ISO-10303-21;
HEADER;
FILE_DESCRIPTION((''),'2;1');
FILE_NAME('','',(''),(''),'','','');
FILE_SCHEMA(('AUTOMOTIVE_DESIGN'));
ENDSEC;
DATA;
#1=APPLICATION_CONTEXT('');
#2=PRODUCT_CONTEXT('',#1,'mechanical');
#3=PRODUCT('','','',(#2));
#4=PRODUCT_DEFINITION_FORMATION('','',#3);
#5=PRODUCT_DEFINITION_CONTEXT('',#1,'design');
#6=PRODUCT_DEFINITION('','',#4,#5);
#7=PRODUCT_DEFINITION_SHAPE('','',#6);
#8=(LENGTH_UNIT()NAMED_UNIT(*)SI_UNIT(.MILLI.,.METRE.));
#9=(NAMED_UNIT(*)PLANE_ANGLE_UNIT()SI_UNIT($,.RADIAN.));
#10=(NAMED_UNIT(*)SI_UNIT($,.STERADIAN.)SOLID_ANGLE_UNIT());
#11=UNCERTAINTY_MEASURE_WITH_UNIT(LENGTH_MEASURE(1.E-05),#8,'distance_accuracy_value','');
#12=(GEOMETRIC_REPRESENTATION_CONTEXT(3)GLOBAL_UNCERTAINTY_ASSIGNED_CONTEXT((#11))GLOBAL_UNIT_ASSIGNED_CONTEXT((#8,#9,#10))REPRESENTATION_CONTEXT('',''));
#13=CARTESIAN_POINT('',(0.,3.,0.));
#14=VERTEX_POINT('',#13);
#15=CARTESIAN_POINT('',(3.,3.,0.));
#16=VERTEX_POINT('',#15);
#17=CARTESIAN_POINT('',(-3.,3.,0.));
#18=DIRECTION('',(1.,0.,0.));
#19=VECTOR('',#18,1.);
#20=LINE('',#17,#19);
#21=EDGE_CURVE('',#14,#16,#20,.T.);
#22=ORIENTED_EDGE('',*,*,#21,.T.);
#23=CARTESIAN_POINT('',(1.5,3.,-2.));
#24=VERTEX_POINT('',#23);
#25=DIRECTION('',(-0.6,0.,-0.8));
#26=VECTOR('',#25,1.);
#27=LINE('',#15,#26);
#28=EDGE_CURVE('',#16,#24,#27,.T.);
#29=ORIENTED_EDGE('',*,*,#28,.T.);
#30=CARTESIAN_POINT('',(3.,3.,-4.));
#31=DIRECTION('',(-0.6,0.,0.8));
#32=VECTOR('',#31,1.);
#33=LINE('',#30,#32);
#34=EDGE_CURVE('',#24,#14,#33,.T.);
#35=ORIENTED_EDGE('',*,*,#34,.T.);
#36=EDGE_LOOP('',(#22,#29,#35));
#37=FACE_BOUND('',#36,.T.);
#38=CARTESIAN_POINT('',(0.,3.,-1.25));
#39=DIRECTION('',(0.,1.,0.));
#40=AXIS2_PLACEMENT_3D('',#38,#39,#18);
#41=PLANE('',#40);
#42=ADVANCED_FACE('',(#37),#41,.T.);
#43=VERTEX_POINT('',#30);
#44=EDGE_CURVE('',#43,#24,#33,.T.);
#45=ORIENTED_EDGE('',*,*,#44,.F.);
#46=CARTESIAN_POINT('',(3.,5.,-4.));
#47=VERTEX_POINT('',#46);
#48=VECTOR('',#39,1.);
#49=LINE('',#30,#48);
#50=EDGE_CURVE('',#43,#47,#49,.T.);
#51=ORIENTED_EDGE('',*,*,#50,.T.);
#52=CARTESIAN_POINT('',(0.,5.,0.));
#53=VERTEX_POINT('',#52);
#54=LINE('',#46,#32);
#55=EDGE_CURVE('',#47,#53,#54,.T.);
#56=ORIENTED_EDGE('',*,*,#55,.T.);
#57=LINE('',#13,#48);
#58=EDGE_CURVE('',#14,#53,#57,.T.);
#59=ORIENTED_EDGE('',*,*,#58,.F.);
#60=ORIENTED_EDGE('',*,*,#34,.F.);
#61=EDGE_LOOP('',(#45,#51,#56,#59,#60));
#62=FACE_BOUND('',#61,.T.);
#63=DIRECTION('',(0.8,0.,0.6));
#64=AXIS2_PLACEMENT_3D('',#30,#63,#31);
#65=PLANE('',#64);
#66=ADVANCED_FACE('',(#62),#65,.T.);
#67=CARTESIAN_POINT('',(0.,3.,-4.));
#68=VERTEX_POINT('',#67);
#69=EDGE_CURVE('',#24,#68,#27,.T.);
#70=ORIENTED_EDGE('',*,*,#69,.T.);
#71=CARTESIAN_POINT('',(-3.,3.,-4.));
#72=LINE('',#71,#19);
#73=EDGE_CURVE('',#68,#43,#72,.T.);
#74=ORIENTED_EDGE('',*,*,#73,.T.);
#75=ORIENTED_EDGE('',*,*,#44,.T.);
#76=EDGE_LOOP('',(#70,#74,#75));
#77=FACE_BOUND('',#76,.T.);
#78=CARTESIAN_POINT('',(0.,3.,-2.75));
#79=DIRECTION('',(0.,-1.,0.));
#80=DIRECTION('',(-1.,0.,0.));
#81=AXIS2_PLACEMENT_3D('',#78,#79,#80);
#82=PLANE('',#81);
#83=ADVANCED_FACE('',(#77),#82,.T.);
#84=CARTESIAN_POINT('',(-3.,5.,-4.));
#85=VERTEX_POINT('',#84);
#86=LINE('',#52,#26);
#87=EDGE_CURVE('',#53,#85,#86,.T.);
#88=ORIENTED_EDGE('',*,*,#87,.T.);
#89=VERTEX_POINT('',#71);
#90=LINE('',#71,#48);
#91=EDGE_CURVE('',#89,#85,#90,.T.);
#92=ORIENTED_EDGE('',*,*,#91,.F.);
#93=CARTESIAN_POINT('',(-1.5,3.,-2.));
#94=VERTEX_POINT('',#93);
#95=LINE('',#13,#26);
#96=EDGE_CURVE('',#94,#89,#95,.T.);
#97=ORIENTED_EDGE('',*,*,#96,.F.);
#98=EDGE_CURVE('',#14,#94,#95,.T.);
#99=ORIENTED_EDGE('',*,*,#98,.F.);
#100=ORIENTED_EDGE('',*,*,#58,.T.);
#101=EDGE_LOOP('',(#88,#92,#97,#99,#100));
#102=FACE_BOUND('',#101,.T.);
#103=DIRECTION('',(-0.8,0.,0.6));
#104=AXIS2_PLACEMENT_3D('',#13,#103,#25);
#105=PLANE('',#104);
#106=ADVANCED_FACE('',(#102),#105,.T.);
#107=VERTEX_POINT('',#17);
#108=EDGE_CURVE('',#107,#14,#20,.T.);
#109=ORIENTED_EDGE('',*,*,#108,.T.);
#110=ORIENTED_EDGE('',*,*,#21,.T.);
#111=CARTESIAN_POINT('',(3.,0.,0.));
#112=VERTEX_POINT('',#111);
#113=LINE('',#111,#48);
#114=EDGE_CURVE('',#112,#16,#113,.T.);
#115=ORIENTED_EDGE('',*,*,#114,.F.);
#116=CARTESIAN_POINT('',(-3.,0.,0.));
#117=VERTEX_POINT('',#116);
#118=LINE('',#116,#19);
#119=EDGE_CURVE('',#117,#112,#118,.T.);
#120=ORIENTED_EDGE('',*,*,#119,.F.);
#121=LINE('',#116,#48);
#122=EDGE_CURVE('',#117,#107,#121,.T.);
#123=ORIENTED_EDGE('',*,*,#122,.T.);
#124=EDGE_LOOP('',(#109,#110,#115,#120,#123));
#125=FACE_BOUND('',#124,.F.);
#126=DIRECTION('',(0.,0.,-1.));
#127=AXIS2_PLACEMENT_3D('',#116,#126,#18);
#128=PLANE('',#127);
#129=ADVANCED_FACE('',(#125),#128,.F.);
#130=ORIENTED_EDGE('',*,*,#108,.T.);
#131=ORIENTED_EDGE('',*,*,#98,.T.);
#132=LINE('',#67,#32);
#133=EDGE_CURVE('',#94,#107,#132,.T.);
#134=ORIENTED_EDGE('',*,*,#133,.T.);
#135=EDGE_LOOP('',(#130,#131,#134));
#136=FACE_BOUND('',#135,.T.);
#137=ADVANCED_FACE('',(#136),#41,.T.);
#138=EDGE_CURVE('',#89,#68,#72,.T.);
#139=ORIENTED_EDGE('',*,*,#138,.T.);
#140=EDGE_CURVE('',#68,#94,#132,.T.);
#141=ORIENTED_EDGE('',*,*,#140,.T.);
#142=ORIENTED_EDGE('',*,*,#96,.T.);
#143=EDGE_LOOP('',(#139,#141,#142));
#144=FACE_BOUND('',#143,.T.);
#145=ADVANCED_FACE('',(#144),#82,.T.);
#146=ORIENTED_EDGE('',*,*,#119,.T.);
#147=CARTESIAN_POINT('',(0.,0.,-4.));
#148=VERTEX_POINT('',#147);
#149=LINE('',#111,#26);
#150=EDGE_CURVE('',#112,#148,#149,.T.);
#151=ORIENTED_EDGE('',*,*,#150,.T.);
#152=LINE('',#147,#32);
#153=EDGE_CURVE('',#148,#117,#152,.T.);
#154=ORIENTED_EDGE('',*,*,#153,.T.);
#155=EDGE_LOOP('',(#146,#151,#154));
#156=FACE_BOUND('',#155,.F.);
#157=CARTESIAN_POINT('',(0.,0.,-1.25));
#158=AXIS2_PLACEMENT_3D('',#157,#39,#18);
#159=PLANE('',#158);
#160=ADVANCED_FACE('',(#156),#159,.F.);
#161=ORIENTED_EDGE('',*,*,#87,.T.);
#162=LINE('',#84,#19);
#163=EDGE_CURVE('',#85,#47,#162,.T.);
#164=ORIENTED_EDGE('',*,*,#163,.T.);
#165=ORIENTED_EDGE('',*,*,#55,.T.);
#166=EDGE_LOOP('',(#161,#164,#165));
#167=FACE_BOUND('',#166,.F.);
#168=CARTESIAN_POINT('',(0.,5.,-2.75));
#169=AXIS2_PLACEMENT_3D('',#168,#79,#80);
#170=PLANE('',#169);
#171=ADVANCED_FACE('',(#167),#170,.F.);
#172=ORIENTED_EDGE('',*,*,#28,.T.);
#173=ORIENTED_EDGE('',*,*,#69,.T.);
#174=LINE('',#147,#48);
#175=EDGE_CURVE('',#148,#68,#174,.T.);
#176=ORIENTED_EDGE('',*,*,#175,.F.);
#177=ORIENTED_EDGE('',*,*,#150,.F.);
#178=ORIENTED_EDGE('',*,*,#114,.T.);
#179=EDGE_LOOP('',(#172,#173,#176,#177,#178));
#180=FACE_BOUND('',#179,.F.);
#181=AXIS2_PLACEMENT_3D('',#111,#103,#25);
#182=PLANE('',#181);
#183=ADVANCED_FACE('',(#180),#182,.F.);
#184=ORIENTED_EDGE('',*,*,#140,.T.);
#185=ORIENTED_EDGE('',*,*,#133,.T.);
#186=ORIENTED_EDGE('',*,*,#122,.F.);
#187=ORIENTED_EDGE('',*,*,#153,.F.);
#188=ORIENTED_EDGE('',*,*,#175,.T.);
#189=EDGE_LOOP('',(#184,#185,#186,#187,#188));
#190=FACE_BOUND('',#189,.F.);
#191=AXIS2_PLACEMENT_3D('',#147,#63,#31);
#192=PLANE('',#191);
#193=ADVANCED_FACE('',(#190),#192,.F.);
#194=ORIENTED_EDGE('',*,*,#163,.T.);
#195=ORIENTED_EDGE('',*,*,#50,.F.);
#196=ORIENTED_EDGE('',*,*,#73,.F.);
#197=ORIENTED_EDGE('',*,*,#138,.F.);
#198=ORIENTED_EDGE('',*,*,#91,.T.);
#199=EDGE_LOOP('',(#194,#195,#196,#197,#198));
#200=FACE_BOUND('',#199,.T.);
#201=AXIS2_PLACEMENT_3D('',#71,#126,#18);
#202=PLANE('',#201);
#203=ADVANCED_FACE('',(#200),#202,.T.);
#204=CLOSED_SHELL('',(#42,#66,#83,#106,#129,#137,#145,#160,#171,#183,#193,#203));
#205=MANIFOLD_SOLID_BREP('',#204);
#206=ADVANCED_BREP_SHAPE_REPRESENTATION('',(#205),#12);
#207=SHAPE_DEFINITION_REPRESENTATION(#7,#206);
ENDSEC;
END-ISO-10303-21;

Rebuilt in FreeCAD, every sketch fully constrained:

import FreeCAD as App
import Part
import Sketcher


def add_polygon(sketch, points):
    """Adds a closed chain of lines whose ends are joined by coincident constraints."""
    first, n = sketch.GeometryCount, len(points)
    for a, b in zip(points, points[1:] + points[:1]):
        sketch.addGeometry(Part.LineSegment(App.Vector(*a, 0), App.Vector(*b, 0)), False)
    for i in range(n):
        sketch.addConstraint(Sketcher.Constraint("Coincident", first + i, 2, first + (i + 1) % n, 1))

doc = App.newDocument("Part")
body = doc.addObject("PartDesign::Body", "Body")

sketch1 = body.newObject("Sketcher::SketchObject", "Sketch")
sketch1.AttachmentSupport = (doc.getObject("XZ_Plane"), [""])
sketch1.MapMode = "FlatFace"
add_polygon(sketch1, [(0, -4), (-3, 0), (3, 0)])
sketch1.addConstraint(Sketcher.Constraint("Horizontal", 1))
sketch1.addConstraint(Sketcher.Constraint("Symmetric", 0, 2, 1, 2, -1, 1))
sketch1.addConstraint(Sketcher.Constraint("PointOnObject", 2, 2, -2))
sketch1.addConstraint(Sketcher.Constraint("DistanceX", 1, 1, 1, 2, 6.0))
sketch1.addConstraint(Sketcher.Constraint("Distance", 0, 5.0))
pad1 = body.newObject("PartDesign::Pad", "Pad")
pad1.Profile = sketch1
pad1.Length = 3
pad1.Reversed = True

sketch2 = body.newObject("Sketcher::SketchObject", "Sketch001")
sketch2.AttachmentSupport = (doc.getObject("XZ_Plane"), [""])
sketch2.MapMode = "FlatFace"
sketch2.AttachmentOffset = App.Placement(App.Vector(0, 0, -3), App.Rotation())
add_polygon(sketch2, [(-3, -4), (0, 0), (3, -4)])
sketch2.addConstraint(Sketcher.Constraint("Horizontal", 2))
sketch2.addConstraint(Sketcher.Constraint("Coincident", 0, 2, -1, 1))
sketch2.addConstraint(Sketcher.Constraint("Equal", 0, 1))
sketch2.addConstraint(Sketcher.Constraint("DistanceX", 2, 2, 2, 1, 6.0))
sketch2.addConstraint(Sketcher.Constraint("Distance", 0, 5.0))
pad2 = body.newObject("PartDesign::Pad", "Pad001")
pad2.Profile = sketch2
pad2.Length = 2
pad2.Reversed = True

doc.recompute()
